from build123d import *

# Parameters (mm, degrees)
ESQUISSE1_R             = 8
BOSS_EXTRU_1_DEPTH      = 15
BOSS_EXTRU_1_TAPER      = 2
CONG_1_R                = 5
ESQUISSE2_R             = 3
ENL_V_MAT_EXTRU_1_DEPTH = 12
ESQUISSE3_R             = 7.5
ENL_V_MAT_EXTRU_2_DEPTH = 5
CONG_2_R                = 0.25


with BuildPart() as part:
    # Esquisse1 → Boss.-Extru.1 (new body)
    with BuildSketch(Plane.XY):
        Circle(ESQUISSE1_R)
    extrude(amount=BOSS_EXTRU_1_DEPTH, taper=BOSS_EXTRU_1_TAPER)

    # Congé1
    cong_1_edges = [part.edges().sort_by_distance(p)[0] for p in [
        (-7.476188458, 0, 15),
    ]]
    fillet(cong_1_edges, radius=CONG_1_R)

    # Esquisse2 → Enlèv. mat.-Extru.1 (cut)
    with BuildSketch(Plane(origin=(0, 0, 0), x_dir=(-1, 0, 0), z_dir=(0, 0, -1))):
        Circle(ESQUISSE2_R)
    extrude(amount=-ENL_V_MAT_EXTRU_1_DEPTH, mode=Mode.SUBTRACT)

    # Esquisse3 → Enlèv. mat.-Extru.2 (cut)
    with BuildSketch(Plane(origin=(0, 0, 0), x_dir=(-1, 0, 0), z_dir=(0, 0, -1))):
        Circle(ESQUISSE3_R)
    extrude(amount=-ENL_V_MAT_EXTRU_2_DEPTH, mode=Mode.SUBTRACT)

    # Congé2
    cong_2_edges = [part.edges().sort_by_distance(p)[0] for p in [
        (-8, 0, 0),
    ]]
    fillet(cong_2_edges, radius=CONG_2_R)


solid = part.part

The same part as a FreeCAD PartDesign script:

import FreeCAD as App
import Part
import Sketcher

V = App.Vector


def edges_at(feature, points):
    """Names of the edges that pass closest to the given points."""
    edges = feature.Shape.Edges
    near = lambda p: min(range(len(edges)), key=lambda i: edges[i].distToShape(Part.Vertex(*p))[0])
    return sorted({f"Edge{near(p) + 1}" for p in points})

doc = App.newDocument("Part")
body = doc.addObject("PartDesign::Body", "Body")

# Sketch on XY plane
sketch1 = doc.addObject("Sketcher::SketchObject", "Sketch")
body.addObject(sketch1)
sketch1.AttachmentSupport = (doc.XY_Plane, [""])
sketch1.MapMode = "FlatFace"
sketch1.addGeometry(Part.Circle(V(0, 0, 0), V(0, 0, 1), 8), False)
sketch1.addConstraint([
    Sketcher.Constraint("Coincident", 0, 3, -1, 1),
    Sketcher.Constraint("Diameter", 0, 16.0),
])
pad1 = doc.addObject("PartDesign::Pad", "Pad")
body.addObject(pad1)
pad1.Profile = sketch1
pad1.Length = 15
pad1.TaperAngle = -2
doc.recompute()

fillet = doc.addObject("PartDesign::Fillet", "Fillet")
body.addObject(fillet)
fillet.Base = (pad1, edges_at(pad1, [(-7.476, 0, 15)]))
fillet.Radius = 5

# Sketch on XY plane
sketch2 = doc.addObject("Sketcher::SketchObject", "Sketch001")
body.addObject(sketch2)
sketch2.AttachmentSupport = (doc.XY_Plane, [""])
sketch2.MapMode = "FlatFace"
sketch2.addGeometry(Part.Circle(V(0, 0, 0), V(0, 0, 1), 3), False)
sketch2.addConstraint([
    Sketcher.Constraint("Coincident", 0, 3, -1, 1),
    Sketcher.Constraint("Diameter", 0, 6.0),
])
pocket1 = doc.addObject("PartDesign::Pocket", "Pocket")
body.addObject(pocket1)
pocket1.Profile = sketch2
pocket1.Length = 12
pocket1.Reversed = True

# Sketch on XY plane
sketch3 = doc.addObject("Sketcher::SketchObject", "Sketch002")
body.addObject(sketch3)
sketch3.AttachmentSupport = (doc.XY_Plane, [""])
sketch3.MapMode = "FlatFace"
sketch3.addGeometry(Part.Circle(V(0, 0, 0), V(0, 0, 1), 8), False)
sketch3.addConstraint([
    Sketcher.Constraint("Coincident", 0, 3, -1, 1),
    Sketcher.Constraint("Diameter", 0, 15.0),
])
pocket2 = doc.addObject("PartDesign::Pocket", "Pocket001")
body.addObject(pocket2)
pocket2.Profile = sketch3
pocket2.Length = 5
pocket2.Reversed = True
doc.recompute()

fillet2 = doc.addObject("PartDesign::Fillet", "Fillet001")
body.addObject(fillet2)
fillet2.Base = (pocket2, edges_at(pocket2, [(-8, 0, 0)]))
fillet2.Radius = 0.25

doc.recompute()
